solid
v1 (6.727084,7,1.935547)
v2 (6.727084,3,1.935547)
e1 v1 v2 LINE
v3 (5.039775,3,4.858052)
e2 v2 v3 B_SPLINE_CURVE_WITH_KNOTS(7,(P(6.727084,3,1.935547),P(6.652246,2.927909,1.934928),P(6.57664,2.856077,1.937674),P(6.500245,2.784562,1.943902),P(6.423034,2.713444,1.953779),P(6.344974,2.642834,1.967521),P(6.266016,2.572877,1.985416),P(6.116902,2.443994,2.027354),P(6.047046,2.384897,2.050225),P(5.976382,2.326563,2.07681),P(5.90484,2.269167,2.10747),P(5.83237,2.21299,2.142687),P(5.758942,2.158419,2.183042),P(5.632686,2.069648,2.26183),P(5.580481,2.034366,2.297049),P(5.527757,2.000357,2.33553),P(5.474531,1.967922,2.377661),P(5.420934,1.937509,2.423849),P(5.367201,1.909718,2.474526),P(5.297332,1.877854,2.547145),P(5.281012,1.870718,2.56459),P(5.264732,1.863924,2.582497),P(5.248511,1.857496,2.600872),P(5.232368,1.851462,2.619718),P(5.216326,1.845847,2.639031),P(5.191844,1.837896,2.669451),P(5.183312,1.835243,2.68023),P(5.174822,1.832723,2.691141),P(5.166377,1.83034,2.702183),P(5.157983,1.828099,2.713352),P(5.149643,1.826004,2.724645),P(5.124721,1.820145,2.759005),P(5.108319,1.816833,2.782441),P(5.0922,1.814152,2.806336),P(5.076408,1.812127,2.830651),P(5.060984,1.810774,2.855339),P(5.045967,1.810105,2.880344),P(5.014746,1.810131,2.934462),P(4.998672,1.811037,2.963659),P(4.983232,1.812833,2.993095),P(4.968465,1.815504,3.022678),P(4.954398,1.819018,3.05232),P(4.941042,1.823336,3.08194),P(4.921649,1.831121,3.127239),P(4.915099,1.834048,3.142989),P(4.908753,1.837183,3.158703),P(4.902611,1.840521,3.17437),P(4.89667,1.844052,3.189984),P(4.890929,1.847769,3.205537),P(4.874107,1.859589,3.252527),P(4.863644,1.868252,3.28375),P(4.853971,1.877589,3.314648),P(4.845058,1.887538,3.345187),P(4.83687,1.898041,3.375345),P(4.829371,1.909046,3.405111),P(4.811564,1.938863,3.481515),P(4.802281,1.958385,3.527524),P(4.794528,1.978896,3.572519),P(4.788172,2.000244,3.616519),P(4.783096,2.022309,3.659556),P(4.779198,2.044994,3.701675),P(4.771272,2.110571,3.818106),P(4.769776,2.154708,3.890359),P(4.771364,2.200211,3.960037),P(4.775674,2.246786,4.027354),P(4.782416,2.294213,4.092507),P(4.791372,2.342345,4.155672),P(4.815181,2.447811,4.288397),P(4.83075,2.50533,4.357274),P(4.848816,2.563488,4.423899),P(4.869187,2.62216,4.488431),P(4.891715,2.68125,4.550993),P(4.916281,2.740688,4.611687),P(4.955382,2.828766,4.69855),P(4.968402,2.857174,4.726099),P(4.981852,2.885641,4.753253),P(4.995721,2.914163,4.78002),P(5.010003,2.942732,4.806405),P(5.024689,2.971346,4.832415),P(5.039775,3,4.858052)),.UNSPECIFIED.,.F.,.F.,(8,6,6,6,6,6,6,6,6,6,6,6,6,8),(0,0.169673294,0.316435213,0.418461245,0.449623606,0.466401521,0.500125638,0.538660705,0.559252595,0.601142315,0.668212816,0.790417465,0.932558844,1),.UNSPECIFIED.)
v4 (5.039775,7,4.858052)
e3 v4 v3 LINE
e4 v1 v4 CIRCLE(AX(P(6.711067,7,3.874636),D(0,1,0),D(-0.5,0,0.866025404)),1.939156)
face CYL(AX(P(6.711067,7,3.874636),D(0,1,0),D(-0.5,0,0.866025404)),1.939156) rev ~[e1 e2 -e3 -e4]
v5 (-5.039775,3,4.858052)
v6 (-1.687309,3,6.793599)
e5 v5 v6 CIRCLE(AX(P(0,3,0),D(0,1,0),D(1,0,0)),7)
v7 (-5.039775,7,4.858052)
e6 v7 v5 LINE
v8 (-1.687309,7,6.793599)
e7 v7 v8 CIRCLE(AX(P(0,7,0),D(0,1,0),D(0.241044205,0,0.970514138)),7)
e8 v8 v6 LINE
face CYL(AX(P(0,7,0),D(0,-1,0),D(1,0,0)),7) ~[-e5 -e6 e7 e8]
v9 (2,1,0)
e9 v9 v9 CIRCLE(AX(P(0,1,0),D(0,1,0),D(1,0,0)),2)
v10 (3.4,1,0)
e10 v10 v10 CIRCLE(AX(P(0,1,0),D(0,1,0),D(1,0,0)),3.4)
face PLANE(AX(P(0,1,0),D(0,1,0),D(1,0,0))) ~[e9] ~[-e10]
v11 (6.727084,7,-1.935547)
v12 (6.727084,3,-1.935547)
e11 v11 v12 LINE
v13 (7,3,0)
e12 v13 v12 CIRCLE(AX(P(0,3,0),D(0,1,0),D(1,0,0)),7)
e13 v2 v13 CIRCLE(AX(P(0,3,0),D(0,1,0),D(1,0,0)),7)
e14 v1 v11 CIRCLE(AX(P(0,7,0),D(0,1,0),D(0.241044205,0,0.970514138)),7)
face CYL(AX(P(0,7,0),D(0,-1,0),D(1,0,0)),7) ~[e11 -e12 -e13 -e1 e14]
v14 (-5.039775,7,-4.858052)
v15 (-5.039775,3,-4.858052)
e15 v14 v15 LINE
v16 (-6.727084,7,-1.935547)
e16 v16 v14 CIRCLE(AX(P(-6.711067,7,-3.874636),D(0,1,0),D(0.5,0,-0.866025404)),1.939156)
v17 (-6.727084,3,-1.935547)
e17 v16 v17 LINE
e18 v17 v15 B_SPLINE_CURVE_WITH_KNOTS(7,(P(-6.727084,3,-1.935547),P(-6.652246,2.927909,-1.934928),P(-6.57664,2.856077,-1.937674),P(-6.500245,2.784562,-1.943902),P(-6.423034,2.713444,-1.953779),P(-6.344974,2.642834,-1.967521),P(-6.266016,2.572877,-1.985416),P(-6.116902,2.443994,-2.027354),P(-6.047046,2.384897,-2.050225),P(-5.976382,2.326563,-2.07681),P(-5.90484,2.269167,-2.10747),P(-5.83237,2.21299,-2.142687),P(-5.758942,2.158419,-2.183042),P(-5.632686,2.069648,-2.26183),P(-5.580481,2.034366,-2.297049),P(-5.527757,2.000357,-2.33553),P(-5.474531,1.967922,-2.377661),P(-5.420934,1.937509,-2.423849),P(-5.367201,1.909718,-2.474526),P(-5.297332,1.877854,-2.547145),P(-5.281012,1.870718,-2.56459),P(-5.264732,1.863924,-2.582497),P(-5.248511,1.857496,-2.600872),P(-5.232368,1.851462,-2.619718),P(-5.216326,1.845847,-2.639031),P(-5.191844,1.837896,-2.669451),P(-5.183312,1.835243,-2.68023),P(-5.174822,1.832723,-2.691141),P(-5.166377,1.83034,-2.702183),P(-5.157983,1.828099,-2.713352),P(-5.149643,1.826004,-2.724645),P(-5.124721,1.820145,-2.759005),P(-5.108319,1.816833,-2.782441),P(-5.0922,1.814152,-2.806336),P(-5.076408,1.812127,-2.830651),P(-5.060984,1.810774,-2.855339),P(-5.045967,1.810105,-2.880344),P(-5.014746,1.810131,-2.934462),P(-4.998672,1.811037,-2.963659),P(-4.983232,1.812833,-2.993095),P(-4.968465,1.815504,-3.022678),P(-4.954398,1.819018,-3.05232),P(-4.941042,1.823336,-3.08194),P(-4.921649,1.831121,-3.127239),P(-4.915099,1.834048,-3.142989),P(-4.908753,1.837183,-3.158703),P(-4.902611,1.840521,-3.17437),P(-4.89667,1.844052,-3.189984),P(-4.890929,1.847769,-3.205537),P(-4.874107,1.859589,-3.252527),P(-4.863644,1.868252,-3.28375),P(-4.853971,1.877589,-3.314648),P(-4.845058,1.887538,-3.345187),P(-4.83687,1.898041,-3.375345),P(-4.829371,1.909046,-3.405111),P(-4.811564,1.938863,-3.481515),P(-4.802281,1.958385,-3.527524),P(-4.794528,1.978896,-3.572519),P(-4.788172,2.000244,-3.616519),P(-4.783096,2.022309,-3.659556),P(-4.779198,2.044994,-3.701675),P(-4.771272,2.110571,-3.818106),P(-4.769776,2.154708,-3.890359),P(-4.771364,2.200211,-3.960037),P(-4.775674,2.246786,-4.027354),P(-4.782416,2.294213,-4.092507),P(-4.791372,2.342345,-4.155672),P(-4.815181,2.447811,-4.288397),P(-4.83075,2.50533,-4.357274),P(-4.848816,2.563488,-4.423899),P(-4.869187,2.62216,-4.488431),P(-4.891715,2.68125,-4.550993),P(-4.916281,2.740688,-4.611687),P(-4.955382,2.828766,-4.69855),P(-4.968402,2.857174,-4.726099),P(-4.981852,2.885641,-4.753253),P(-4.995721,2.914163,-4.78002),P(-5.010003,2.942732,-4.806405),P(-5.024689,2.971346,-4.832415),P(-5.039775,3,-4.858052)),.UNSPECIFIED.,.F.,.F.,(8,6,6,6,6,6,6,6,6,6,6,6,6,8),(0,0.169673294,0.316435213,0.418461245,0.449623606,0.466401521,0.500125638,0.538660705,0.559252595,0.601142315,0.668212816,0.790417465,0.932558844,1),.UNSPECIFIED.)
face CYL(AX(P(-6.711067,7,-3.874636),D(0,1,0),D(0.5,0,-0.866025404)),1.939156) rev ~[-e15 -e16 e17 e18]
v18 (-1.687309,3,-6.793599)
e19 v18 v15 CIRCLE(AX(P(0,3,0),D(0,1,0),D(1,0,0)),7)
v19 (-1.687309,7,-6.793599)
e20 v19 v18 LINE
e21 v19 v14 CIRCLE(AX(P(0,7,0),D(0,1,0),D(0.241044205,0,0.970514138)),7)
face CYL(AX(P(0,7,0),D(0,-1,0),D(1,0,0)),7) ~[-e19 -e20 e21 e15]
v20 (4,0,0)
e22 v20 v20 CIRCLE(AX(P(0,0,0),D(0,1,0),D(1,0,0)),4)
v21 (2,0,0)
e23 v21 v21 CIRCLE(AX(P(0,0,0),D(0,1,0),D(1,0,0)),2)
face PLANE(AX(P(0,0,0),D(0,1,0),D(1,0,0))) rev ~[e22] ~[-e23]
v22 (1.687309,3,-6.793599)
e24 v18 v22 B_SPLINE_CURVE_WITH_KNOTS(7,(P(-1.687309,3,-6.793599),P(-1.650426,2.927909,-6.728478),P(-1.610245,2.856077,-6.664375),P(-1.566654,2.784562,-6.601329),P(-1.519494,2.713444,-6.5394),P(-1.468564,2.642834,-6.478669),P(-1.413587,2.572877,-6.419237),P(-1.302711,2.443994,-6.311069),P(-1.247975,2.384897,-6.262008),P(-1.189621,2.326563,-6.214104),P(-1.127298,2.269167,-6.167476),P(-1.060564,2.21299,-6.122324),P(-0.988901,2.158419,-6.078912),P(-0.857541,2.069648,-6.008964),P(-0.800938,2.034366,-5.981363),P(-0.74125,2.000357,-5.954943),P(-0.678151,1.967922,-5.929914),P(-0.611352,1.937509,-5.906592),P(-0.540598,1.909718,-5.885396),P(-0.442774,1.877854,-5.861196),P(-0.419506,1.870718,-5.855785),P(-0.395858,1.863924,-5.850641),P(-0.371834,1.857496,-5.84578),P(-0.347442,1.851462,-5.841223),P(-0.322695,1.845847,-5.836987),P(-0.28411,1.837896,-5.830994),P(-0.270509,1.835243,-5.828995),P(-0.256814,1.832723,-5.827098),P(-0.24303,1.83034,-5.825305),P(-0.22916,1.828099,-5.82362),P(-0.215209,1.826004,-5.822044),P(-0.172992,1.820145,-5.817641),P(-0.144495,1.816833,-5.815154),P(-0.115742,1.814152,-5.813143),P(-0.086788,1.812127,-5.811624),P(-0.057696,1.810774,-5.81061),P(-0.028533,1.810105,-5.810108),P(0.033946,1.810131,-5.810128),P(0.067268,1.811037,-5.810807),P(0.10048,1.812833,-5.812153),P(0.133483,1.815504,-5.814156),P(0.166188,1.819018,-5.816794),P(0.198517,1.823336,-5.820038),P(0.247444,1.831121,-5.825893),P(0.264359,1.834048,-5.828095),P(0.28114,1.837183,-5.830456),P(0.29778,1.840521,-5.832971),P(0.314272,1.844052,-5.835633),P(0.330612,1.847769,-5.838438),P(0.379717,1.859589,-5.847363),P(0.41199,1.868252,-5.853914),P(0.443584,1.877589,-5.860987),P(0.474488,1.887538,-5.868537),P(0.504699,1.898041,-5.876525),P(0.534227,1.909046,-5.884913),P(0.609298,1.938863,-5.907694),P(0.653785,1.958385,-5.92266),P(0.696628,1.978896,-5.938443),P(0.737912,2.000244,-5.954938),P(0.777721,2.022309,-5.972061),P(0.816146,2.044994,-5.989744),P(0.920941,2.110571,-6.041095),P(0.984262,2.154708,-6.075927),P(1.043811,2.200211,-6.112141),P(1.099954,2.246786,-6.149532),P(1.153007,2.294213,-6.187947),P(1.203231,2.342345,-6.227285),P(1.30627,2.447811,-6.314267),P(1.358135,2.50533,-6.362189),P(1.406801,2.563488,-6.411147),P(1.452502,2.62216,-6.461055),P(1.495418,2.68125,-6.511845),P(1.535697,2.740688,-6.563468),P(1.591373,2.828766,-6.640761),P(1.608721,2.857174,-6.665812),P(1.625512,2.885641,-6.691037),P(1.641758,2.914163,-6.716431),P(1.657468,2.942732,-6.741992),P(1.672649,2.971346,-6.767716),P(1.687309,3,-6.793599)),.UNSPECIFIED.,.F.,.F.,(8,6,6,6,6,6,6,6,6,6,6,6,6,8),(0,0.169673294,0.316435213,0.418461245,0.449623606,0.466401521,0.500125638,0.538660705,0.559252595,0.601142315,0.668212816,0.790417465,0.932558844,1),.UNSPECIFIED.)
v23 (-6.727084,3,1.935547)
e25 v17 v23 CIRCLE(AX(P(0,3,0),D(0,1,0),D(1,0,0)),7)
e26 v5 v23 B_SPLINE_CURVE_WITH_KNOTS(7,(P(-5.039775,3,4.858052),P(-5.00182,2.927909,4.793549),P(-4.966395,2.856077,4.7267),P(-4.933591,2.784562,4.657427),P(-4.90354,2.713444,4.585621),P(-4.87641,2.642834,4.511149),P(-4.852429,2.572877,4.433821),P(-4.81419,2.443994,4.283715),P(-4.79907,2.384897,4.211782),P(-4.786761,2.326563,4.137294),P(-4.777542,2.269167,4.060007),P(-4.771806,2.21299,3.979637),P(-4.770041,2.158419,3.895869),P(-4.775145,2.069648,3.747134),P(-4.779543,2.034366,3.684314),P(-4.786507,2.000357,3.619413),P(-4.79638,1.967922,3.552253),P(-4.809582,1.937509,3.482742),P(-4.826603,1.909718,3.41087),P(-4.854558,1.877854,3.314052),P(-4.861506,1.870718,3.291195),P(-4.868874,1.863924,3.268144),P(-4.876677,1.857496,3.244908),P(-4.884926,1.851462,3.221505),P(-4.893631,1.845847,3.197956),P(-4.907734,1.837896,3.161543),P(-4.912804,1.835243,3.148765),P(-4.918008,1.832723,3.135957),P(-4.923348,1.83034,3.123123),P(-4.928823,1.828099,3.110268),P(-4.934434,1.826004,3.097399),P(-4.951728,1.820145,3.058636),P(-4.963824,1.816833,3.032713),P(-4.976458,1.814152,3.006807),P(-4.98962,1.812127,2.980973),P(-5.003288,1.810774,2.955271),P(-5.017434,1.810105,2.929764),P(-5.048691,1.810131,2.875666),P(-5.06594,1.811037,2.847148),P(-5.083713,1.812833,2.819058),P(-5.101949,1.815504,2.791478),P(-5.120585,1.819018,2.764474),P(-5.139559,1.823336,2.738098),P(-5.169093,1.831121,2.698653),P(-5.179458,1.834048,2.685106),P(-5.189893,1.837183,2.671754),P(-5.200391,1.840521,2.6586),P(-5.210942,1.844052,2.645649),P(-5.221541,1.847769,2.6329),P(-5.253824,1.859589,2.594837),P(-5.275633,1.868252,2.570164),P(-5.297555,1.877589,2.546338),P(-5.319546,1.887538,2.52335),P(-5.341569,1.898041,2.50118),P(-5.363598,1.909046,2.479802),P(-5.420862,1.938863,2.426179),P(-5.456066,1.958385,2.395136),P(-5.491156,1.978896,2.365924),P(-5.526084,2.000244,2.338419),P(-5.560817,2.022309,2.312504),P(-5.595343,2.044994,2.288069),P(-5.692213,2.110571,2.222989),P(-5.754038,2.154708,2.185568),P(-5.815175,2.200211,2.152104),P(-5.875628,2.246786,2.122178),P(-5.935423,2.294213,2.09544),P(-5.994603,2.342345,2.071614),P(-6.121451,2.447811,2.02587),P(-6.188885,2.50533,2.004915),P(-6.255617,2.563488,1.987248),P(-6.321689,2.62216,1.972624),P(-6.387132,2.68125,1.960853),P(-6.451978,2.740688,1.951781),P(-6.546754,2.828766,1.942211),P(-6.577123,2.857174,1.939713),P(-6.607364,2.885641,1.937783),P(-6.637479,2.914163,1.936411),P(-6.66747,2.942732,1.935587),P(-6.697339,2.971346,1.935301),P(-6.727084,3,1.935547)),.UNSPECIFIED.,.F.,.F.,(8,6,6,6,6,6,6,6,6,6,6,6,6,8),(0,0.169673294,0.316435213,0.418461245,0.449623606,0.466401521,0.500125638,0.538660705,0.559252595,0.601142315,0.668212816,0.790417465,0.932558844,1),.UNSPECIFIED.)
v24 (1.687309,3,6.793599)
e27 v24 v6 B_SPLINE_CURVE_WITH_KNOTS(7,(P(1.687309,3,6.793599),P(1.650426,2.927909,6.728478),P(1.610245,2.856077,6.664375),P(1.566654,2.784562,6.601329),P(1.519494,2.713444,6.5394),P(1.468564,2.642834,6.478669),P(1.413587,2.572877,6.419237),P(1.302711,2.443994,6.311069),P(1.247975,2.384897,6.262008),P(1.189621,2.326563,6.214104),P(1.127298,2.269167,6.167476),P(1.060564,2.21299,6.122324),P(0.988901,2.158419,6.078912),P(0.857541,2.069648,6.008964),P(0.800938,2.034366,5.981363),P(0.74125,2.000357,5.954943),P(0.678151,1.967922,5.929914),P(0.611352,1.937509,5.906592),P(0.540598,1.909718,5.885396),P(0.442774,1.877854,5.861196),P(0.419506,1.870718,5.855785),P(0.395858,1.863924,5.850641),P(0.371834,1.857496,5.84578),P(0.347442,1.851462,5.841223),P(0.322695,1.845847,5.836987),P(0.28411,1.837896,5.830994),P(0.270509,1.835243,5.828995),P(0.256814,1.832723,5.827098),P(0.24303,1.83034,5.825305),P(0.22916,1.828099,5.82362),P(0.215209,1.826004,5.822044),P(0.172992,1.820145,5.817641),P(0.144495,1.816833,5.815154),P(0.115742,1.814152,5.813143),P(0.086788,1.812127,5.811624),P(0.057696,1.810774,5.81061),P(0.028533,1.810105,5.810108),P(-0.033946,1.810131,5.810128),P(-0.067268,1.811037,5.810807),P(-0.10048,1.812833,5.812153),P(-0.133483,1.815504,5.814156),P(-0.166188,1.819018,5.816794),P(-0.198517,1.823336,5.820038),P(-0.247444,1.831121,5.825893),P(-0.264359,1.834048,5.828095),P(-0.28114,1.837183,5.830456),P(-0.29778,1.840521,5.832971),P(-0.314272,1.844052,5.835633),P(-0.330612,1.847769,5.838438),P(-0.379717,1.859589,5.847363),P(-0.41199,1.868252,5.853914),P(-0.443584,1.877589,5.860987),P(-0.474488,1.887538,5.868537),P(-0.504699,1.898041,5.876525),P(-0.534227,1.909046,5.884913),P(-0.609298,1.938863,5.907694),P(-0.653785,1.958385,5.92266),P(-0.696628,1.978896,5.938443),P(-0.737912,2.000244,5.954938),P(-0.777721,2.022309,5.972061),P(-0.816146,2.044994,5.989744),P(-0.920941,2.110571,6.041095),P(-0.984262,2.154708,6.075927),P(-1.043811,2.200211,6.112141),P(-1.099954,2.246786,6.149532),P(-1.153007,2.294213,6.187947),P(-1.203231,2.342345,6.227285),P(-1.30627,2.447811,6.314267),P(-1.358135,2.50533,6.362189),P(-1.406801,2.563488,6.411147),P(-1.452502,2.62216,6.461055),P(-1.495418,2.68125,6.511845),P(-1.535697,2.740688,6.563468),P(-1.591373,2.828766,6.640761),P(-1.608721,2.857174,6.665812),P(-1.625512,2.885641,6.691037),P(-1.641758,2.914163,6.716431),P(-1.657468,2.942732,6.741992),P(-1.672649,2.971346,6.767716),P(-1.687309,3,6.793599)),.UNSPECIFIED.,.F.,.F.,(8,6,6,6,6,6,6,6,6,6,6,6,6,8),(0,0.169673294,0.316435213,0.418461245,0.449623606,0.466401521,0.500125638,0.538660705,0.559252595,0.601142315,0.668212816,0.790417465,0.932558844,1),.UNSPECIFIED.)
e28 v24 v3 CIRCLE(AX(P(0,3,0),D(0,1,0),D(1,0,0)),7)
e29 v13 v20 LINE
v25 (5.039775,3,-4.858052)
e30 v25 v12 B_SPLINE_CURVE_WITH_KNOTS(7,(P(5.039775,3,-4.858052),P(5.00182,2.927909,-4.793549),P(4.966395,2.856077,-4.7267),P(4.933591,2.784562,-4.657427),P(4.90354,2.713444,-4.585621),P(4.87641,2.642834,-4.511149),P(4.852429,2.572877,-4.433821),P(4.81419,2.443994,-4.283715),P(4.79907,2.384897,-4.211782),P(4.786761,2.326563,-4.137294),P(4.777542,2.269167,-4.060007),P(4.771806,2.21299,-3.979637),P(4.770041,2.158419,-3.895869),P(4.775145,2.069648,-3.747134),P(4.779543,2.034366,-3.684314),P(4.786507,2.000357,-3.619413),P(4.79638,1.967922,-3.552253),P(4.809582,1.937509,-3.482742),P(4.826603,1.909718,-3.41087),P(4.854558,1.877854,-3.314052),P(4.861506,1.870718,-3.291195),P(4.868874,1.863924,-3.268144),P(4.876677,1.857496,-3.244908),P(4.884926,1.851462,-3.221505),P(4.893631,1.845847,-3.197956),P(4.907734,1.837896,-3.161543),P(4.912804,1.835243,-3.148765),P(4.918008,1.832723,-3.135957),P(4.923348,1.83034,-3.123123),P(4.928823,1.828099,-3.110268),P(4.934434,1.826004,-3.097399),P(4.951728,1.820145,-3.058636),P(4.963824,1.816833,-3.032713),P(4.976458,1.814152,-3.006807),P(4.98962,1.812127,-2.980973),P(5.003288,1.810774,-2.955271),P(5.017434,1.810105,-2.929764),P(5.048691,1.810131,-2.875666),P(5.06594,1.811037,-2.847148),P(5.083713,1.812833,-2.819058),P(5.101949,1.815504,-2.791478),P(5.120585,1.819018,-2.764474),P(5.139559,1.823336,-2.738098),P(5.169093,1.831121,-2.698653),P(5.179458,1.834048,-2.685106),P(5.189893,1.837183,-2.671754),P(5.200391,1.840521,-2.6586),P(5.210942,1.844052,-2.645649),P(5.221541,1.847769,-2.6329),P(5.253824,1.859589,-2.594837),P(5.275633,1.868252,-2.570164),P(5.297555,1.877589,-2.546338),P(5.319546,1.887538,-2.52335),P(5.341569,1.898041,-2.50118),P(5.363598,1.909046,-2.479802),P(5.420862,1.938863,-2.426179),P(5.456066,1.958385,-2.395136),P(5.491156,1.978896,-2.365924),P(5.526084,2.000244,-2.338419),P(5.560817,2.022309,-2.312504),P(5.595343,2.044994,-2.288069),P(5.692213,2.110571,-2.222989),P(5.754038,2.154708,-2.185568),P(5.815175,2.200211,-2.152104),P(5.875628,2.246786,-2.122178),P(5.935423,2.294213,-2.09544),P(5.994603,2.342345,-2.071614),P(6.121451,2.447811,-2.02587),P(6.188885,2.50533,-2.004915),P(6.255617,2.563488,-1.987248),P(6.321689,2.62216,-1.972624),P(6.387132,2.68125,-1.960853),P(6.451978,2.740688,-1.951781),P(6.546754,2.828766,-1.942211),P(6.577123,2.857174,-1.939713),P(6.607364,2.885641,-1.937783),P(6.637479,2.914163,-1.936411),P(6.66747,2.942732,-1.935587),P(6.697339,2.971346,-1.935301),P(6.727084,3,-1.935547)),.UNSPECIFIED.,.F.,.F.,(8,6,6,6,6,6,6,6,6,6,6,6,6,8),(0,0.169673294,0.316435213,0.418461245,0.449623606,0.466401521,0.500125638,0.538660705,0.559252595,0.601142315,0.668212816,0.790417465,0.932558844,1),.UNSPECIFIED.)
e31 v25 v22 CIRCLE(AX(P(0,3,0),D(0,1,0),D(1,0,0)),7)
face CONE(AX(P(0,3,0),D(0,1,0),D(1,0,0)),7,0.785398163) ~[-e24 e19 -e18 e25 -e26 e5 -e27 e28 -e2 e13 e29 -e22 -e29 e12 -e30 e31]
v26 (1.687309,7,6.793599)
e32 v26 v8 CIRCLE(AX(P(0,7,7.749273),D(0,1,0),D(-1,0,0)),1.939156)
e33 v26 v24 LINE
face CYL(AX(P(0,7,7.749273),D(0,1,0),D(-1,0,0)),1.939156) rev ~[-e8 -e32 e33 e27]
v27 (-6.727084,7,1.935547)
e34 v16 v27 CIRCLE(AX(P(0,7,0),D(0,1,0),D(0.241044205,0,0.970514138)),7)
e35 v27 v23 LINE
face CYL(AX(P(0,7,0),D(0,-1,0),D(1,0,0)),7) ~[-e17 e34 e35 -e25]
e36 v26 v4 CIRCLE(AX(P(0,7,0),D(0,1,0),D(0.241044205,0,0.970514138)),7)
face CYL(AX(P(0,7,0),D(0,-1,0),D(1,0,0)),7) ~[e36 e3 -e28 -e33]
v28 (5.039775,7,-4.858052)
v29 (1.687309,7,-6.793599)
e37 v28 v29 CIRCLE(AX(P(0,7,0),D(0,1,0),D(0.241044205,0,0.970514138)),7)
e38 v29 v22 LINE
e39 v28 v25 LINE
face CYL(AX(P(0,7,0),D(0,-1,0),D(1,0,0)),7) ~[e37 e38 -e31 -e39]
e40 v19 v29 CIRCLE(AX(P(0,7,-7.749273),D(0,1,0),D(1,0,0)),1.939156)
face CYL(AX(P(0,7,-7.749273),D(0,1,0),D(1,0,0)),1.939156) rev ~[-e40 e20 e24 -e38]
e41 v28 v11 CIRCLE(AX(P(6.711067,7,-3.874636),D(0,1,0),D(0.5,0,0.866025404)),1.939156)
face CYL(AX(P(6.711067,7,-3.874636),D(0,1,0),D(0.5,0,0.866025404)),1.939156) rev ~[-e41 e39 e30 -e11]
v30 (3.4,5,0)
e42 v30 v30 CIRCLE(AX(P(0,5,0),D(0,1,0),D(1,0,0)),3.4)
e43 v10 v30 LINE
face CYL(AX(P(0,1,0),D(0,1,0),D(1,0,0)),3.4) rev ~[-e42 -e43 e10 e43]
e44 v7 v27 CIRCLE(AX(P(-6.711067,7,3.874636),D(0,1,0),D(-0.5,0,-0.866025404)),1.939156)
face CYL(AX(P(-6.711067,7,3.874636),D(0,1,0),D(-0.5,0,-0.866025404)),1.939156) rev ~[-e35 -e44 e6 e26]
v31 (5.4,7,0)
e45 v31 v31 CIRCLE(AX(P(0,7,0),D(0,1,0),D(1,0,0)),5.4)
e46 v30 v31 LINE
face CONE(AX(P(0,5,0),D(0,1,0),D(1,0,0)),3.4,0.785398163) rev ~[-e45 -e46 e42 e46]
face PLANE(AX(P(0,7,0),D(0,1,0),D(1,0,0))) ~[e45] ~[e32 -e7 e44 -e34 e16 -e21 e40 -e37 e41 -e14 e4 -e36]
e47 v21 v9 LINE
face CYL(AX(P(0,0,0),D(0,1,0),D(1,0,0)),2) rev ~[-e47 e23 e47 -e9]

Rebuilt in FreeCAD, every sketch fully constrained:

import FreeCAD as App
import Part
import Sketcher

V = App.Vector
Q = App.Units.Quantity


def edges_at(feature, points):
    """Names of the edges that pass closest to the given points."""
    edges = feature.Shape.Edges
    near = lambda p: min(range(len(edges)), key=lambda i: edges[i].distToShape(Part.Vertex(*p))[0])
    return sorted({f"Edge{near(p) + 1}" for p in points})


def add_polygon(sketch, points):
    """Adds a closed chain of lines whose ends are joined by coincident constraints."""
    first, n = sketch.GeometryCount, len(points)
    for a, b in zip(points, points[1:] + points[:1]):
        sketch.addGeometry(Part.LineSegment(App.Vector(*a, 0), App.Vector(*b, 0)), False)
    for i in range(n):
        sketch.addConstraint(Sketcher.Constraint("Coincident", first + i, 2, first + (i + 1) % n, 1))

doc = App.newDocument("Part")
body = doc.addObject("PartDesign::Body", "Body")

# Sketch on XY plane
sketch1 = body.newObject("Sketcher::SketchObject", "Sketch")
sketch1.AttachmentSupport = (doc.getObject("XY_Plane"), [""])
sketch1.MapMode = "FlatFace"
add_polygon(sketch1, [(2, 1), (2, 0), (4, 0), (7, 3), (7, 7), (3.4, 7), (3.4, 1)])  # lines 0-6
sketch1.addConstraint(Sketcher.Constraint("Vertical", 0))
sketch1.addConstraint(Sketcher.Constraint("Horizontal", 1))
sketch1.addConstraint(Sketcher.Constraint("Vertical", 3))
sketch1.addConstraint(Sketcher.Constraint("Horizontal", 4))
sketch1.addConstraint(Sketcher.Constraint("Vertical", 5))
sketch1.addConstraint(Sketcher.Constraint("Horizontal", 6))
sketch1.addConstraint(Sketcher.Constraint("PointOnObject", 0, 2, -1))
sketch1.addConstraint(Sketcher.Constraint("DistanceX", 1, 1, 1, 2, Q("2 mm")))
sketch1.addConstraint(Sketcher.Constraint("DistanceY", 0, 2, 0, 1, Q("1 mm")))
sketch1.addConstraint(Sketcher.Constraint("DistanceY", 3, 1, 3, 2, Q("4 mm")))
sketch1.addConstraint(Sketcher.Constraint("DistanceY", 5, 2, 5, 1, Q("6 mm")))
sketch1.addConstraint(Sketcher.Constraint("Angle", 2, Q("45 deg")))
sketch1.addConstraint(Sketcher.Constraint("DistanceX", 4, 2, 4, 1, Q("3.6 mm")))
sketch1.addConstraint(Sketcher.Constraint("DistanceX", -1, 1, 0, 2, Q("2 mm")))
revolution = body.newObject("PartDesign::Revolution", "Revolution")
revolution.Profile = sketch1
revolution.ReferenceAxis = (sketch1, ["V_Axis"])
revolution.Angle = 360
doc.recompute()

chamfer = body.newObject("PartDesign::Chamfer", "Chamfer")
chamfer.Base = (revolution, edges_at(revolution, [(-3.4, 7, 0)]))
chamfer.Size = 2

# Sketch on XZ plane
sketch2 = body.newObject("Sketcher::SketchObject", "Sketch001")
sketch2.AttachmentSupport = (doc.getObject("XZ_Plane"), [""])
sketch2.MapMode = "FlatFace"
sketch2.AttachmentOffset = App.Placement(V(0, 0, -7), App.Rotation())
sketch2.addGeometry(Part.Circle(V(0, 7.7, 0), V(0, 0, 1), 1.9), False)
sketch2.addConstraint(Sketcher.Constraint("PointOnObject", 0, 3, -2))
sketch2.addConstraint(Sketcher.Constraint("Diameter", 0, Q("3.878312 mm")))
sketch2.addConstraint(Sketcher.Constraint("DistanceY", -1, 1, 0, 3, Q("7.749273 mm")))
pocket1 = body.newObject("PartDesign::Pocket", "Pocket")
pocket1.Profile = sketch2
pocket1.Type = "ThroughAll"
pocket1.Reversed = True
doc.recompute()

polarpattern = body.newObject("PartDesign::PolarPattern", "PolarPattern")
polarpattern.Originals = [pocket1]
polarpattern.Axis = (doc.getObject("Y_Axis"), [""])
polarpattern.Angle = 360
polarpattern.Occurrences = 6
body.Tip = polarpattern

doc.recompute()
